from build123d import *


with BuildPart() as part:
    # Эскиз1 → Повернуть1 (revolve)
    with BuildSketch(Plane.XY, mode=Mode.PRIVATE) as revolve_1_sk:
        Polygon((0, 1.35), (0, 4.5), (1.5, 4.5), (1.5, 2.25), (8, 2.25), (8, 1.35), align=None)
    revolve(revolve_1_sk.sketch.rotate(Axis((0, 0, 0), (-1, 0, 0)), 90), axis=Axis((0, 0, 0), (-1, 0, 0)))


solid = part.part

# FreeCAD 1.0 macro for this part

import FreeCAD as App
import Part
import Sketcher
from FreeCAD import Vector


def add_polygon(sketch, points):
    """Adds a closed chain of lines whose ends are joined by coincident constraints."""
    first, n = sketch.GeometryCount, len(points)
    for a, b in zip(points, points[1:] + points[:1]):
        sketch.addGeometry(Part.LineSegment(App.Vector(*a, 0), App.Vector(*b, 0)), False)
    for i in range(n):
        sketch.addConstraint(Sketcher.Constraint("Coincident", first + i, 2, first + (i + 1) % n, 1))

doc = App.newDocument("Part")
body = doc.addObject("PartDesign::Body", "Body")

sketch1 = doc.addObject("Sketcher::SketchObject", "Sketch")
body.addObject(sketch1)
sketch1.AttachmentSupport = (doc.XY_Plane, [""])
sketch1.MapMode = "FlatFace"
add_polygon(sketch1, [(0, 4.5), (0, 1.4), (8, 1.4), (8, 2.2), (1.5, 2.2), (1.5, 4.5)])
sketch1.addConstraint([
    Sketcher.Constraint("Vertical", 0),
    Sketcher.Constraint("Horizontal", 1),
    Sketcher.Constraint("Vertical", 2),
    Sketcher.Constraint("Horizontal", 3),
    Sketcher.Constraint("Vertical", 4),
    Sketcher.Constraint("Horizontal", 5),
    Sketcher.Constraint("PointOnObject", 0, 2, -2),
    Sketcher.Constraint("DistanceX", 1, 1, 1, 2, 8.0),
    Sketcher.Constraint("DistanceX", 3, 2, 3, 1, 6.5),
    Sketcher.Constraint("DistanceY", 2, 1, 2, 2, 0.9),
    Sketcher.Constraint("DistanceY", 0, 2, 0, 1, 3.15),
    Sketcher.Constraint("DistanceY", -1, 1, 4, 2, 4.5),
])
revolution = doc.addObject("PartDesign::Revolution", "Revolution")
body.addObject(revolution)
revolution.Profile = sketch1
revolution.ReferenceAxis = (sketch1, ["H_Axis"])
revolution.Angle = 360

doc.recompute()
